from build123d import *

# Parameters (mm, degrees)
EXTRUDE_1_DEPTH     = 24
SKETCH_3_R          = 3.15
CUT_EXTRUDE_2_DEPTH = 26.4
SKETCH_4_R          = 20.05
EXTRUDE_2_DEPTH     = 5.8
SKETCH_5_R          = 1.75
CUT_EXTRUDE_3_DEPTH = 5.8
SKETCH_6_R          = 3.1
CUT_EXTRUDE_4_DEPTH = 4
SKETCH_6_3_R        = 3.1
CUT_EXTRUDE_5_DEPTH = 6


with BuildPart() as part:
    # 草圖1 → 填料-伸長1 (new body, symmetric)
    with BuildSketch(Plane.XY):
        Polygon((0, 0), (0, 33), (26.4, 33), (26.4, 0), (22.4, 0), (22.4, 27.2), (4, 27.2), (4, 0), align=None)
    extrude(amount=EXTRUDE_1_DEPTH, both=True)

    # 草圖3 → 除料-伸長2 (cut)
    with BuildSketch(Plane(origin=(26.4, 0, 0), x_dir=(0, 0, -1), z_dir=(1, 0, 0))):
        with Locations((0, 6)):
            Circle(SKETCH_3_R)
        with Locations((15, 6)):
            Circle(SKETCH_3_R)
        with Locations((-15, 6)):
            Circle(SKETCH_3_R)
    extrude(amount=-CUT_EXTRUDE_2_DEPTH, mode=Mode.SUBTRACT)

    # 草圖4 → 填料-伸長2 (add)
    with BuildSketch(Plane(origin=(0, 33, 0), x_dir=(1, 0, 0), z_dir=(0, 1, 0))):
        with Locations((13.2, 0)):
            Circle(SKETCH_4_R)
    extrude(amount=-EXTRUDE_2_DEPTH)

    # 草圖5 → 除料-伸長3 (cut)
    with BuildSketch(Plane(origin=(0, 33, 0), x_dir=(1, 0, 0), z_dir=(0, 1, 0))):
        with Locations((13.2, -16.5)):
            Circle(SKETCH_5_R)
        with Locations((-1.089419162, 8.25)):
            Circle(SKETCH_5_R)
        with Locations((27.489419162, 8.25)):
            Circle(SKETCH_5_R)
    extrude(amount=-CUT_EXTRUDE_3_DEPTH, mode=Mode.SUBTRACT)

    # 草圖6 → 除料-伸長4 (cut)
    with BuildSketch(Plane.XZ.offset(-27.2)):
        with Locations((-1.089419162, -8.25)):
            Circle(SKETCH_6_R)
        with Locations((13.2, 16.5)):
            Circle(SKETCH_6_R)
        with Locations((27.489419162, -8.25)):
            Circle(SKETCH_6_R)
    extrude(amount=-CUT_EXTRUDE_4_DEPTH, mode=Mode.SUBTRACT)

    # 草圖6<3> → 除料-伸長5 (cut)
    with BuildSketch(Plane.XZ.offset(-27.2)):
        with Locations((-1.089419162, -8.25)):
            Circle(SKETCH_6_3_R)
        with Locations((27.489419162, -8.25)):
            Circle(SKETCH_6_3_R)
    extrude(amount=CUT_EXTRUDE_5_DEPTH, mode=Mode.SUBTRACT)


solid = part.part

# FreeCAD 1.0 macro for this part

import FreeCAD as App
import Part
import Sketcher
Q = App.Units.Quantity


def add_polygon(sketch, points):
    """Adds a closed chain of lines whose ends are joined by coincident constraints."""
    first, n = sketch.GeometryCount, len(points)
    for a, b in zip(points, points[1:] + points[:1]):
        sketch.addGeometry(Part.LineSegment(App.Vector(*a, 0), App.Vector(*b, 0)), False)
    for i in range(n):
        sketch.addConstraint(Sketcher.Constraint("Coincident", first + i, 2, first + (i + 1) % n, 1))

doc = App.newDocument("Part")
params = doc.addObject("Spreadsheet::Sheet", "Params")
for row, (alias, value) in enumerate([
    ("sketch1_width", "4 mm"),
    ("sketch1_height", "33 mm"),
    ("sketch1_width2", "18.4 mm"),
    ("sketch1_height2", "27.2 mm"),
    ("pad1_length", "48 mm"),
    ("sketch2_diameter", "6.3 mm"),
    ("pocket1_length", "26.4 mm"),
    ("sketch3_diameter", "40.1 mm"),
    ("pad2_length", "5.8 mm"),
    ("sketch4_diameter", "3.5 mm"),
    ("pocket2_length", "5.8 mm"),
    ("sketch5_diameter", "6.2 mm"),
    ("pocket3_length", "4 mm"),
    ("sketch6_diameter", "6.2 mm"),
    ("pocket4_length", "6 mm"),
], start=1):
    params.set(f"A{row}", alias)
    params.set(f"B{row}", "=" + value)
    params.setAlias(f"B{row}", alias)

body = doc.addObject("PartDesign::Body", "Body")

sketch1 = body.newObject("Sketcher::SketchObject", "Sketch")
sketch1.AttachmentSupport = (doc.getObject("XY_Plane"), [""])
sketch1.MapMode = "FlatFace"
add_polygon(sketch1, [(0, 33), (0, 0), (4, 0), (4, 27.2), (22.4, 27.2), (22.4, 0), (26.4, 0), (26.4, 33)])
sketch1.addConstraint([
    Sketcher.Constraint("Vertical", 0),
    Sketcher.Constraint("Horizontal", 1),
    Sketcher.Constraint("Vertical", 2),
    Sketcher.Constraint("Horizontal", 3),
    Sketcher.Constraint("Vertical", 4),
    Sketcher.Constraint("Horizontal", 5),
    Sketcher.Constraint("Vertical", 6),
    Sketcher.Constraint("Horizontal", 7),
    Sketcher.Constraint("Coincident", 0, 2, -1, 1),
    Sketcher.Constraint("PointOnObject", 4, 2, -1),
    Sketcher.Constraint("Equal", 1, 5),
    Sketcher.Constraint("DistanceX", 1, 1, 1, 2, Q("4 mm")),
    Sketcher.Constraint("DistanceY", 0, 2, 0, 1, Q("33 mm")),
    Sketcher.Constraint("DistanceX", 3, 1, 3, 2, Q("18.4 mm")),
    Sketcher.Constraint("DistanceY", 2, 1, 2, 2, Q("27.2 mm")),
])
sketch1.setExpression("Constraints[19]", "Params.sketch1_width")
sketch1.setExpression("Constraints[20]", "Params.sketch1_height")
sketch1.setExpression("Constraints[21]", "Params.sketch1_width2")
sketch1.setExpression("Constraints[22]", "Params.sketch1_height2")
pad1 = body.newObject("PartDesign::Pad", "Pad")
pad1.Profile = sketch1
pad1.setExpression("Length", "Params.pad1_length")
pad1.Midplane = True

sketch2 = body.newObject("Sketcher::SketchObject", "Sketch001")
sketch2.AttachmentSupport = (doc.getObject("YZ_Plane"), [""])
sketch2.MapMode = "FlatFace"
sketch2.AttachmentOffset = App.Placement(App.Vector(0, 0, 26.4), App.Rotation())
sketch2.addGeometry([
    Part.Circle(App.Vector(6, 0, 0), App.Vector(0, 0, 1), 3.1),
    Part.Circle(App.Vector(6, -15, 0), App.Vector(0, 0, 1), 3.1),
    Part.Circle(App.Vector(6, 15, 0), App.Vector(0, 0, 1), 3.1),
], False)
sketch2.addConstraint([
    Sketcher.Constraint("Equal", 0, 1),
    Sketcher.Constraint("Equal", 1, 2),
    Sketcher.Constraint("Symmetric", 1, 3, 2, 3, -1),
    Sketcher.Constraint("PointOnObject", 0, 3, -1),
    Sketcher.Constraint("Vertical", 0, 3, 1, 3),
    Sketcher.Constraint("Diameter", 0, Q("6.3 mm")),
    Sketcher.Constraint("DistanceX", -1, 1, 0, 3, Q("6 mm")),
    Sketcher.Constraint("DistanceY", 1, 3, -1, 1, Q("15 mm")),
])
sketch2.setExpression("Constraints[5]", "Params.sketch2_diameter")
pocket1 = body.newObject("PartDesign::Pocket", "Pocket")
pocket1.Profile = sketch2
pocket1.setExpression("Length", "Params.pocket1_length")

sketch3 = body.newObject("Sketcher::SketchObject", "Sketch002")
sketch3.AttachmentSupport = (doc.getObject("XZ_Plane"), [""])
sketch3.MapMode = "FlatFace"
sketch3.AttachmentOffset = App.Placement(App.Vector(0, 0, -33), App.Rotation())
sketch3.addGeometry(Part.Circle(App.Vector(13, 0, 0), App.Vector(0, 0, 1), 20), False)
sketch3.addConstraint([
    Sketcher.Constraint("PointOnObject", 0, 3, -1),
    Sketcher.Constraint("Diameter", 0, Q("40.1 mm")),
    Sketcher.Constraint("DistanceX", -1, 1, 0, 3, Q("13.2 mm")),
])
sketch3.setExpression("Constraints[1]", "Params.sketch3_diameter")
pad2 = body.newObject("PartDesign::Pad", "Pad001")
pad2.Profile = sketch3
pad2.setExpression("Length", "Params.pad2_length")

sketch4 = body.newObject("Sketcher::SketchObject", "Sketch003")
sketch4.AttachmentSupport = (doc.getObject("XZ_Plane"), [""])
sketch4.MapMode = "FlatFace"
sketch4.AttachmentOffset = App.Placement(App.Vector(0, 0, -33), App.Rotation())
sketch4.addGeometry([
    Part.Circle(App.Vector(13.2, 16.5, 0), App.Vector(0, 0, 1), 1.8),
    Part.Circle(App.Vector(-1.1, -8.2, 0), App.Vector(0, 0, 1), 1.8),
    Part.Circle(App.Vector(27.5, -8.2, 0), App.Vector(0, 0, 1), 1.8),
], False)
sketch4.addConstraint([
    Sketcher.Constraint("Equal", 0, 1),
    Sketcher.Constraint("Equal", 1, 2),
    Sketcher.Constraint("Horizontal", 1, 3, 2, 3),
    Sketcher.Constraint("Diameter", 0, Q("3.5 mm")),
    Sketcher.Constraint("DistanceX", -1, 1, 0, 3, Q("13.2 mm")),
    Sketcher.Constraint("DistanceY", -1, 1, 0, 3, Q("16.5 mm")),
    Sketcher.Constraint("DistanceY", 1, 3, -1, 1, Q("8.25 mm")),
    Sketcher.Constraint("DistanceX", 1, 3, -1, 1, Q("1.089419 mm")),
    Sketcher.Constraint("DistanceX", -1, 1, 2, 3, Q("27.489419 mm")),
])
sketch4.setExpression("Constraints[3]", "Params.sketch4_diameter")
pocket2 = body.newObject("PartDesign::Pocket", "Pocket001")
pocket2.Profile = sketch4
pocket2.setExpression("Length", "Params.pocket2_length")
pocket2.Reversed = True

sketch5 = body.newObject("Sketcher::SketchObject", "Sketch004")
sketch5.AttachmentSupport = (doc.getObject("XZ_Plane"), [""])
sketch5.MapMode = "FlatFace"
sketch5.AttachmentOffset = App.Placement(App.Vector(0, 0, -27.2), App.Rotation())
sketch5.addGeometry([
    Part.Circle(App.Vector(-1.1, -8.2, 0), App.Vector(0, 0, 1), 3.1),
    Part.Circle(App.Vector(13.2, 16.5, 0), App.Vector(0, 0, 1), 3.1),
    Part.Circle(App.Vector(27.5, -8.2, 0), App.Vector(0, 0, 1), 3.1),
], False)
sketch5.addConstraint([
    Sketcher.Constraint("Equal", 0, 1),
    Sketcher.Constraint("Equal", 1, 2),
    Sketcher.Constraint("Horizontal", 0, 3, 2, 3),
    Sketcher.Constraint("Diameter", 0, Q("6.2 mm")),
    Sketcher.Constraint("DistanceX", -1, 1, 1, 3, Q("13.2 mm")),
    Sketcher.Constraint("DistanceY", -1, 1, 1, 3, Q("16.5 mm")),
    Sketcher.Constraint("DistanceY", 0, 3, -1, 1, Q("8.25 mm")),
    Sketcher.Constraint("DistanceX", 0, 3, -1, 1, Q("1.089419 mm")),
    Sketcher.Constraint("DistanceX", -1, 1, 2, 3, Q("27.489419 mm")),
])
sketch5.setExpression("Constraints[3]", "Params.sketch5_diameter")
pocket3 = body.newObject("PartDesign::Pocket", "Pocket002")
pocket3.Profile = sketch5
pocket3.setExpression("Length", "Params.pocket3_length")

sketch6 = body.newObject("Sketcher::SketchObject", "Sketch005")
sketch6.AttachmentSupport = (doc.getObject("XZ_Plane"), [""])
sketch6.MapMode = "FlatFace"
sketch6.AttachmentOffset = App.Placement(App.Vector(0, 0, -27.2), App.Rotation())
sketch6.addGeometry([
    Part.Circle(App.Vector(-1.1, -8.2, 0), App.Vector(0, 0, 1), 3.1),
    Part.Circle(App.Vector(27.5, -8.2, 0), App.Vector(0, 0, 1), 3.1),
], False)
sketch6.addConstraint([
    Sketcher.Constraint("Equal", 0, 1),
    Sketcher.Constraint("Horizontal", 0, 3, 1, 3),
    Sketcher.Constraint("Diameter", 0, Q("6.2 mm")),
    Sketcher.Constraint("DistanceY", 0, 3, -1, 1, Q("8.25 mm")),
    Sketcher.Constraint("DistanceX", 0, 3, -1, 1, Q("1.089419 mm")),
    Sketcher.Constraint("DistanceX", -1, 1, 1, 3, Q("27.489419 mm")),
])
sketch6.setExpression("Constraints[2]", "Params.sketch6_diameter")
pocket4 = body.newObject("PartDesign::Pocket", "Pocket003")
pocket4.Profile = sketch6
pocket4.setExpression("Length", "Params.pocket4_length")
pocket4.Reversed = True

doc.recompute()
